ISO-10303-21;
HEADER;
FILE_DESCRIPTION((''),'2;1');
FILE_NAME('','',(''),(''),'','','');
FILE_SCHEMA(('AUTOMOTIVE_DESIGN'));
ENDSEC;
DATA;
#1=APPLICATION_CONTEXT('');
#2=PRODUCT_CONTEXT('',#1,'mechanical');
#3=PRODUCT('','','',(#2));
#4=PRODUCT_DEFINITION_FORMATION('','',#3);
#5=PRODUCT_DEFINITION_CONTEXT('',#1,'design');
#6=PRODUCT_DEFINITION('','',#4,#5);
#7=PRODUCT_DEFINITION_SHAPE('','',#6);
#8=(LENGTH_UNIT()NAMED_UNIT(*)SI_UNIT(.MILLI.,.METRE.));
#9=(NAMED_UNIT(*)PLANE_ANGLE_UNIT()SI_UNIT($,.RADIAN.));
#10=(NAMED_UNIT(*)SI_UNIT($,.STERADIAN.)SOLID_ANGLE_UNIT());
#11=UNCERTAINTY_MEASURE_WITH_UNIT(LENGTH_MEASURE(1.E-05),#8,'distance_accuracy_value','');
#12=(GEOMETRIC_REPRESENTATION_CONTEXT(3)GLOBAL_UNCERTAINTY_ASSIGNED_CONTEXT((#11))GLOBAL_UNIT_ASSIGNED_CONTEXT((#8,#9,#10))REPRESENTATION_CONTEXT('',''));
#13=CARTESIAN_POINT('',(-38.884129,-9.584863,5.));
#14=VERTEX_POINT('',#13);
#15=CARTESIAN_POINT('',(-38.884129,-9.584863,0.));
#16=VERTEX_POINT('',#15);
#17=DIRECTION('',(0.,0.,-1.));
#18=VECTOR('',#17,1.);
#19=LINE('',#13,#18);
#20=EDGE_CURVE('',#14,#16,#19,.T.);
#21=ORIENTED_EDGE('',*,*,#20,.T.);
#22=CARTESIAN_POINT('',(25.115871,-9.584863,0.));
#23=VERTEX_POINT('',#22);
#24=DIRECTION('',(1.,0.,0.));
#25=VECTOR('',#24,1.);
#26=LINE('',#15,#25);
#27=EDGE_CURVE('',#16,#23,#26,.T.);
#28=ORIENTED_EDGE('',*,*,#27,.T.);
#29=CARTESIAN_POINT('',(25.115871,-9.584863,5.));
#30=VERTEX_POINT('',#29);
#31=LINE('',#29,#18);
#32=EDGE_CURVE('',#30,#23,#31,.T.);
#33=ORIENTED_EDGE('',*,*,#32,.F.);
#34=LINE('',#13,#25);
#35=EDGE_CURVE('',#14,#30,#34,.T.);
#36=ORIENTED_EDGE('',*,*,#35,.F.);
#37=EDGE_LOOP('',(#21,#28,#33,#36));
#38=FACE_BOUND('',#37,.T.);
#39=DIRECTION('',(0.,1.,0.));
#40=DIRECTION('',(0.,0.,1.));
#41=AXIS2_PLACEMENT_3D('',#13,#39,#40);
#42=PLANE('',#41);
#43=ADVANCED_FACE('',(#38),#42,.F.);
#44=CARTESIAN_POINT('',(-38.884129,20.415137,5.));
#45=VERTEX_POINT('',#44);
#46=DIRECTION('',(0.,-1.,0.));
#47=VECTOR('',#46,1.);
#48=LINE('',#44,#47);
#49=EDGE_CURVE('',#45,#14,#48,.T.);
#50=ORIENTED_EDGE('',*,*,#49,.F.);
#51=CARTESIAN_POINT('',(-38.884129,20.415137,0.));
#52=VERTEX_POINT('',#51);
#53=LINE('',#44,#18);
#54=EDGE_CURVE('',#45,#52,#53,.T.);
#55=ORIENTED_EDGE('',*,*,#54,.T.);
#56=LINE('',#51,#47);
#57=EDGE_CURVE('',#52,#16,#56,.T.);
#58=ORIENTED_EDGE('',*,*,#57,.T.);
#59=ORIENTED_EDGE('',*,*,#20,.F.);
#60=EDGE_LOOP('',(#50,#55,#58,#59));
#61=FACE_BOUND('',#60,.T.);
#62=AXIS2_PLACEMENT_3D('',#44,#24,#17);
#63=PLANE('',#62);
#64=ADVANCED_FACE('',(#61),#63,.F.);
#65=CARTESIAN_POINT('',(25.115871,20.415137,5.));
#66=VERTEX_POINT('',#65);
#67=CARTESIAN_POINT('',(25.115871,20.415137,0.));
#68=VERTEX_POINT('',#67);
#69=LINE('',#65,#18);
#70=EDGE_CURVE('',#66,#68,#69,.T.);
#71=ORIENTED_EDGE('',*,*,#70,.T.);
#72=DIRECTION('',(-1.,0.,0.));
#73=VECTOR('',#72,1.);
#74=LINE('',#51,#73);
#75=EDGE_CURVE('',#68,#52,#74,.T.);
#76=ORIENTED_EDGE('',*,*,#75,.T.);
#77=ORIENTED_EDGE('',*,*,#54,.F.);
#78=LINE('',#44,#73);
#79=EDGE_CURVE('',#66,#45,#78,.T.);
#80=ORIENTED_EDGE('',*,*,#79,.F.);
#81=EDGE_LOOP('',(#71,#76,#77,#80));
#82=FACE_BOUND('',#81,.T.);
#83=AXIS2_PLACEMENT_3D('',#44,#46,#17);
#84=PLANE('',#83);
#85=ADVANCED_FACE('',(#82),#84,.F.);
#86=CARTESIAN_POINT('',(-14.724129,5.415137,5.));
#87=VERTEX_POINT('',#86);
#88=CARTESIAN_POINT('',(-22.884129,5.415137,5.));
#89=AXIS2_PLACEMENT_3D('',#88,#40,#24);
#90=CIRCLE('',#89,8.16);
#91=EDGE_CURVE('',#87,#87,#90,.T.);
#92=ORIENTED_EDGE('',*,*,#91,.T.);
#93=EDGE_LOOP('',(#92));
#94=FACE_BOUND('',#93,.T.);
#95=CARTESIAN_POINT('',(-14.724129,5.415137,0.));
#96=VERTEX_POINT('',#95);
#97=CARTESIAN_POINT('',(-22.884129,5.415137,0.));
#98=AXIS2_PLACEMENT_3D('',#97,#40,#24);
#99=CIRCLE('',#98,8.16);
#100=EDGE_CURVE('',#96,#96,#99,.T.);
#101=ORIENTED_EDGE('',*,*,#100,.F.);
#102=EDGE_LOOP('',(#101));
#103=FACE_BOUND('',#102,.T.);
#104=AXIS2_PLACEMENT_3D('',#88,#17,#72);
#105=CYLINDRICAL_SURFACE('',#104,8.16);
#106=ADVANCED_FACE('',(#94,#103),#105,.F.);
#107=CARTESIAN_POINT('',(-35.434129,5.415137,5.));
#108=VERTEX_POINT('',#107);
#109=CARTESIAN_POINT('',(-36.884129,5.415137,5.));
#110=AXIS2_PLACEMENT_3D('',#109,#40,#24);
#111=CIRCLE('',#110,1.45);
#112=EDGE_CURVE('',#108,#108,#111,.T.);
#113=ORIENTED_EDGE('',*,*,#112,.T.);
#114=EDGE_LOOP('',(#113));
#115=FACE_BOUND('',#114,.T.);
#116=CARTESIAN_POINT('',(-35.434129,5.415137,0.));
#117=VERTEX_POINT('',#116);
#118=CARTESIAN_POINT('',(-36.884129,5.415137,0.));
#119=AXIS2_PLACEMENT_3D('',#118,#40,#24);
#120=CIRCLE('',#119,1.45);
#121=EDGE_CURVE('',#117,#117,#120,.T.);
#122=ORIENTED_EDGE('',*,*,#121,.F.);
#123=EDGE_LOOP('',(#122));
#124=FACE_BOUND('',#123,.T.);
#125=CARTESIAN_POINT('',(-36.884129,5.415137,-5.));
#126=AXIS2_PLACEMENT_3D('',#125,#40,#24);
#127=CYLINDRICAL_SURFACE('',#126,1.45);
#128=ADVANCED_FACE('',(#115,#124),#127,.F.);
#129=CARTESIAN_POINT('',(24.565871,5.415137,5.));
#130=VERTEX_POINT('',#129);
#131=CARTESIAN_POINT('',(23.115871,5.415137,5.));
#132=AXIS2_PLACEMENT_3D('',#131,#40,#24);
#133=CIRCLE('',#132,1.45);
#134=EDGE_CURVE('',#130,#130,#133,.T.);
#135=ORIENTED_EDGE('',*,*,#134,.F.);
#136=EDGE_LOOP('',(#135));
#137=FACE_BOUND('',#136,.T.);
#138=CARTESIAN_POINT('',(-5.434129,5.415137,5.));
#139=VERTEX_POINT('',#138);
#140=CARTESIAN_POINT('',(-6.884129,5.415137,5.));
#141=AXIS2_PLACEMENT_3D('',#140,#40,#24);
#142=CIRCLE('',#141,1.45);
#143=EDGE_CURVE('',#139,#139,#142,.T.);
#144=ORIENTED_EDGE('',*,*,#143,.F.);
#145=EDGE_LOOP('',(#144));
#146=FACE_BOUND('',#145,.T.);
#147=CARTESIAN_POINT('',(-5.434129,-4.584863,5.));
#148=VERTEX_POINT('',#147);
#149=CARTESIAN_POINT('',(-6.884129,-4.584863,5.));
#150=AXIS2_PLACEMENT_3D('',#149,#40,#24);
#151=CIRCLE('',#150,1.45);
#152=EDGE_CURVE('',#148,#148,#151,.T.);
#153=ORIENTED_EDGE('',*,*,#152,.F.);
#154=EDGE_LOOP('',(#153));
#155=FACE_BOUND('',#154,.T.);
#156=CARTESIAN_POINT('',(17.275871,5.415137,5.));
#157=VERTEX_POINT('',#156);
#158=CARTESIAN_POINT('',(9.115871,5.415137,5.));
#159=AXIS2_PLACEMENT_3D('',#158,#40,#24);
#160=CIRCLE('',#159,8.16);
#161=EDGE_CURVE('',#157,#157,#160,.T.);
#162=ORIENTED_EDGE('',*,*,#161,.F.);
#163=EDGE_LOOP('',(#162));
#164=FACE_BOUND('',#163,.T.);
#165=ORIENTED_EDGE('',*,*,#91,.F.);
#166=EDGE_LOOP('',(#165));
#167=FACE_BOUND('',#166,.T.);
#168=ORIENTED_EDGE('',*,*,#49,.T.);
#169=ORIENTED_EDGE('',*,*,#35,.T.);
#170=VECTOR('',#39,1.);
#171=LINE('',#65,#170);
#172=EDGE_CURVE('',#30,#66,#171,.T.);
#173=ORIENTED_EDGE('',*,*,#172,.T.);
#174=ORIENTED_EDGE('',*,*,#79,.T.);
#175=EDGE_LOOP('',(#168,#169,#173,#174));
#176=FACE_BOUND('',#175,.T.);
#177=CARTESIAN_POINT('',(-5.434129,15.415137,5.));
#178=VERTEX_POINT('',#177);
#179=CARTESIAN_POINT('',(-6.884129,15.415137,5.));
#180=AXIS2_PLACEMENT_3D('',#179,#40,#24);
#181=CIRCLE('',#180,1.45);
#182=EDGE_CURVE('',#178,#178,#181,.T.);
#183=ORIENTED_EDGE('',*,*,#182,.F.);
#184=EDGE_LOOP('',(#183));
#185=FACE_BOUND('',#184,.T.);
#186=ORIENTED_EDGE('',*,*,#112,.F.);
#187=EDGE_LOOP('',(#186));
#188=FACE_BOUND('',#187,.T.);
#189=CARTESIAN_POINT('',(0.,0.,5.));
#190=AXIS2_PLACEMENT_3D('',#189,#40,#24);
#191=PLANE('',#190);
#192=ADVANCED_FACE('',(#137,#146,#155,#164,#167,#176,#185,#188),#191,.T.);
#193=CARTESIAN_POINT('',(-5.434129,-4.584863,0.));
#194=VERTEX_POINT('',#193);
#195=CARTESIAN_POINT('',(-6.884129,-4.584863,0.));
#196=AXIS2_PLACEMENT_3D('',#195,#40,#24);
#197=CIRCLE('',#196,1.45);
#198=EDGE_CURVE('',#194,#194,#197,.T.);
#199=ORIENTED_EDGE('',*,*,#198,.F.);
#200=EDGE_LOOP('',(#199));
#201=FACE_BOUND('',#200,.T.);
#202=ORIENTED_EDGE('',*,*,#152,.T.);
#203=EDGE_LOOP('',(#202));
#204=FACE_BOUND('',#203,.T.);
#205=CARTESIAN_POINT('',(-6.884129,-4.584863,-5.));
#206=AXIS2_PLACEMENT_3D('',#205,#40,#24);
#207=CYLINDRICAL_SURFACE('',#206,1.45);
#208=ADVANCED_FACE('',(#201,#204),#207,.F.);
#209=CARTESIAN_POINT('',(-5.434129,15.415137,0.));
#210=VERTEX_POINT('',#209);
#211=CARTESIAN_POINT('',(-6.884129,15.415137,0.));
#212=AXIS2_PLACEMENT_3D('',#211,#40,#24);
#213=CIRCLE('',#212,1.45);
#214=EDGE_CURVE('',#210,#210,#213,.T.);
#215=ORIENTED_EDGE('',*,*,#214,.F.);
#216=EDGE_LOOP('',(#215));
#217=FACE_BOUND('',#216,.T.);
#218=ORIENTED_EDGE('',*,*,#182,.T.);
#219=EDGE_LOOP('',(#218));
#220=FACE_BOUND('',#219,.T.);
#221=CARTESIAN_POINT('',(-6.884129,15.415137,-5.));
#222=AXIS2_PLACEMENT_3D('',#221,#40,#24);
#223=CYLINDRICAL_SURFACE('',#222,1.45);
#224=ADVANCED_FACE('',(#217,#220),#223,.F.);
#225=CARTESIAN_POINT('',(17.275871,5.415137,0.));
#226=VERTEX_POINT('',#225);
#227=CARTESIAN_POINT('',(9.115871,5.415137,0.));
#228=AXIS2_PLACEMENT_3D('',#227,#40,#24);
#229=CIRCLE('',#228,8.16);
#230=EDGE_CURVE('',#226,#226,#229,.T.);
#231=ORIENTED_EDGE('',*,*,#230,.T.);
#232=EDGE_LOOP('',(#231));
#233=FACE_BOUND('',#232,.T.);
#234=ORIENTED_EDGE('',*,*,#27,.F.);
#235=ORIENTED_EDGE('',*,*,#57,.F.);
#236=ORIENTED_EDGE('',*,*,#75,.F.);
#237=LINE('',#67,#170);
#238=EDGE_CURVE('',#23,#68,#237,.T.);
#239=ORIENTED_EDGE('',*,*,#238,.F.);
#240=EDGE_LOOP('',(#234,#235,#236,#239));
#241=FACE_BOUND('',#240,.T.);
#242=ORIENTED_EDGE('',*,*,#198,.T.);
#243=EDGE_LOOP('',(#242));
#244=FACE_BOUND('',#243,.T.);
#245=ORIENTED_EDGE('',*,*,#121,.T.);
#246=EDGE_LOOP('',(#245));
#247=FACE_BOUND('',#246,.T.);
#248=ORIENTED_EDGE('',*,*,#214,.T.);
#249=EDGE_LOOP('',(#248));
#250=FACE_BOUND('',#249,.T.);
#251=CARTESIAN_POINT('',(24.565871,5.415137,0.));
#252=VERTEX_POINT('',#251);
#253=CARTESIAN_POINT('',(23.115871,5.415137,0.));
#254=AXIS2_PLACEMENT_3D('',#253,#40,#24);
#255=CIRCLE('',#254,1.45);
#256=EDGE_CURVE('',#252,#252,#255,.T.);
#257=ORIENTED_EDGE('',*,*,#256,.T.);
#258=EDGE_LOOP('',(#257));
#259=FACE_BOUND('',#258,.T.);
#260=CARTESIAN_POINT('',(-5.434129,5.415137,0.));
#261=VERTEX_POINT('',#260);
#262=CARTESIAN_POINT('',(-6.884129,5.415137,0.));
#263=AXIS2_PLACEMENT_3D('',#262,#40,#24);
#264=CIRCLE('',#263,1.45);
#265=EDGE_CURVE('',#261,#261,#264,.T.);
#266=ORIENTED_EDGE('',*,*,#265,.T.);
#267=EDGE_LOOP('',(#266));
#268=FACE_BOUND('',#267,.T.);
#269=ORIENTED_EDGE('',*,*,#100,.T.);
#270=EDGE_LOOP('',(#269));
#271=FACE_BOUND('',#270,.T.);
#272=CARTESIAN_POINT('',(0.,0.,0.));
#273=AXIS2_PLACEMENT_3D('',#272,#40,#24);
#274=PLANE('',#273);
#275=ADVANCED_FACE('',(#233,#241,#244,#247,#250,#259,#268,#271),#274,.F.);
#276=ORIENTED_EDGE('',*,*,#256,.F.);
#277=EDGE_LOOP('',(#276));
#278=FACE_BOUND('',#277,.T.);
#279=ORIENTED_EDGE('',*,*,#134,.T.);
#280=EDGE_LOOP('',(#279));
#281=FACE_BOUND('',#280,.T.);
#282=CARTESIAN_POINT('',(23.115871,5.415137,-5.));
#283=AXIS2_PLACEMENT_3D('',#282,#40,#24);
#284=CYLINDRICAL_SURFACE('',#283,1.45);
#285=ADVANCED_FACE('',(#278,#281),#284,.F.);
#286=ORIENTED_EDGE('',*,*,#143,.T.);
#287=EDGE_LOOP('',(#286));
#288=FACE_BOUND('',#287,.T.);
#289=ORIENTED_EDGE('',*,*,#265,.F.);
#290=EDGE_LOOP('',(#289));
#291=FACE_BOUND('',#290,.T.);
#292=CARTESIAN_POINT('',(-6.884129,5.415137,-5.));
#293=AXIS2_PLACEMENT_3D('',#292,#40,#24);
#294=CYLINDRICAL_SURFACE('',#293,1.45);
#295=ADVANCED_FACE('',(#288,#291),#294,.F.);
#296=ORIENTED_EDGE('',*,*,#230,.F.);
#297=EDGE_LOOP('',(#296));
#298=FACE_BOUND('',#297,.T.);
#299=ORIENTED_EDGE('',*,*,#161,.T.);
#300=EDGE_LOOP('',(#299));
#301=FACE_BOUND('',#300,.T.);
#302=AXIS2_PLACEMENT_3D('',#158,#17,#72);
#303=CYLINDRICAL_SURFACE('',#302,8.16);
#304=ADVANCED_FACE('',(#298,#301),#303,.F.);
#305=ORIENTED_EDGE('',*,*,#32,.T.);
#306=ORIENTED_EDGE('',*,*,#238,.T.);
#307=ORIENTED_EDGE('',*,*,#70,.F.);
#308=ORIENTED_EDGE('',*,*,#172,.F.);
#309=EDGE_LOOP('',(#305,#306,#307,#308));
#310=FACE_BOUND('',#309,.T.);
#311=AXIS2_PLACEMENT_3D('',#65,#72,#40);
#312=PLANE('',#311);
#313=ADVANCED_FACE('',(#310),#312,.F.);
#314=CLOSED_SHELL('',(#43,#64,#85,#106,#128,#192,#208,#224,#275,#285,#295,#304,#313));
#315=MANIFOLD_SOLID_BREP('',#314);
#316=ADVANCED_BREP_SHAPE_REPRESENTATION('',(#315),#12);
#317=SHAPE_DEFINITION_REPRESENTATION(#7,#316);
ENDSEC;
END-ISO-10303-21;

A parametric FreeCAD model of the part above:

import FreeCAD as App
import Part
import Sketcher
Q = App.Units.Quantity

doc = App.newDocument("Part")
body = doc.addObject("PartDesign::Body", "Body")

# Sketch on XY plane
sketch1 = body.newObject("Sketcher::SketchObject", "Sketch")
sketch1.AttachmentSupport = (doc.getObject("XY_Plane"), [""])
sketch1.MapMode = "FlatFace"
sketch1.addGeometry([
    Part.LineSegment(App.Vector(-39, 20, 0), App.Vector(-39, -10, 0)),  # 0
    Part.LineSegment(App.Vector(-39, -10, 0), App.Vector(25, -10, 0)),  # 1
    Part.LineSegment(App.Vector(25, -10, 0), App.Vector(25, 20, 0)),  # 2
    Part.LineSegment(App.Vector(25, 20, 0), App.Vector(-39, 20, 0)),  # 3
    Part.Circle(App.Vector(-23, 5, 0), App.Vector(0, 0, 1), 8),  # 4
    Part.Circle(App.Vector(9, 5, 0), App.Vector(0, 0, 1), 8),  # 5
], False)
sketch1.addConstraint([
    Sketcher.Constraint("Coincident", 0, 2, 1, 1),
    Sketcher.Constraint("Coincident", 1, 2, 2, 1),
    Sketcher.Constraint("Coincident", 2, 2, 3, 1),
    Sketcher.Constraint("Coincident", 3, 2, 0, 1),
    Sketcher.Constraint("Vertical", 0),
    Sketcher.Constraint("Horizontal", 1),
    Sketcher.Constraint("Vertical", 2),
    Sketcher.Constraint("Horizontal", 3),
    Sketcher.Constraint("Equal", 4, 5),
    Sketcher.Constraint("Horizontal", 4, 3, 5, 3),
    Sketcher.Constraint("Diameter", 4, Q("16.32 mm")),
    Sketcher.Constraint("DistanceX", 1, 1, 1, 2, Q("64 mm")),
    Sketcher.Constraint("DistanceY", 0, 2, 0, 1, Q("30 mm")),
    Sketcher.Constraint("DistanceX", 4, 3, 5, 3, Q("32 mm")),
    Sketcher.Constraint("DistanceX", 0, 2, 4, 3, Q("16 mm")),
    Sketcher.Constraint("DistanceY", 0, 2, 4, 3, Q("15 mm")),
    Sketcher.Constraint("DistanceX", 4, 3, -1, 1, Q("22.884129 mm")),
    Sketcher.Constraint("DistanceY", -1, 1, 4, 3, Q("5.415137 mm")),
])
pad1 = body.newObject("PartDesign::Pad", "Pad")
pad1.Profile = sketch1
pad1.Length = 5

# Sketch on XY plane
sketch2 = body.newObject("Sketcher::SketchObject", "Sketch001")
sketch2.AttachmentSupport = (doc.getObject("XY_Plane"), [""])
sketch2.MapMode = "FlatFace"
sketch2.AttachmentOffset = App.Placement(App.Vector(0, 0, 5), App.Rotation())
sketch2.addGeometry([
    Part.Circle(App.Vector(-6.9, 5.4, 0), App.Vector(0, 0, 1), 1.4),  # 0
    Part.Circle(App.Vector(23.1, 5.4, 0), App.Vector(0, 0, 1), 1.4),  # 1
    Part.Circle(App.Vector(-36.9, 5.4, 0), App.Vector(0, 0, 1), 1.4),  # 2
    Part.Circle(App.Vector(-6.9, 15.4, 0), App.Vector(0, 0, 1), 1.4),  # 3
    Part.Circle(App.Vector(-6.9, -4.6, 0), App.Vector(0, 0, 1), 1.4),  # 4
], False)
sketch2.addConstraint([
    Sketcher.Constraint("Equal", 0, 1),
    Sketcher.Constraint("Equal", 1, 2),
    Sketcher.Constraint("Equal", 2, 3),
    Sketcher.Constraint("Equal", 3, 4),
    Sketcher.Constraint("Horizontal", 0, 3, 1, 3),
    Sketcher.Constraint("Horizontal", 1, 3, 2, 3),
    Sketcher.Constraint("Vertical", 0, 3, 3, 3),
    Sketcher.Constraint("Vertical", 3, 3, 4, 3),
    Sketcher.Constraint("Diameter", 0, Q("2.9 mm")),
    Sketcher.Constraint("DistanceX", 0, 3, 1, 3, Q("30 mm")),
    Sketcher.Constraint("DistanceX", 2, 3, 0, 3, Q("30 mm")),
    Sketcher.Constraint("DistanceY", 0, 3, 3, 3, Q("10 mm")),
    Sketcher.Constraint("DistanceY", 4, 3, 0, 3, Q("10 mm")),
    Sketcher.Constraint("DistanceX", 0, 3, -1, 1, Q("6.884129 mm")),
    Sketcher.Constraint("DistanceY", -1, 1, 0, 3, Q("5.415137 mm")),
])
pocket1 = body.newObject("PartDesign::Pocket", "Pocket")
pocket1.Profile = sketch2
pocket1.Length = 10

doc.recompute()
